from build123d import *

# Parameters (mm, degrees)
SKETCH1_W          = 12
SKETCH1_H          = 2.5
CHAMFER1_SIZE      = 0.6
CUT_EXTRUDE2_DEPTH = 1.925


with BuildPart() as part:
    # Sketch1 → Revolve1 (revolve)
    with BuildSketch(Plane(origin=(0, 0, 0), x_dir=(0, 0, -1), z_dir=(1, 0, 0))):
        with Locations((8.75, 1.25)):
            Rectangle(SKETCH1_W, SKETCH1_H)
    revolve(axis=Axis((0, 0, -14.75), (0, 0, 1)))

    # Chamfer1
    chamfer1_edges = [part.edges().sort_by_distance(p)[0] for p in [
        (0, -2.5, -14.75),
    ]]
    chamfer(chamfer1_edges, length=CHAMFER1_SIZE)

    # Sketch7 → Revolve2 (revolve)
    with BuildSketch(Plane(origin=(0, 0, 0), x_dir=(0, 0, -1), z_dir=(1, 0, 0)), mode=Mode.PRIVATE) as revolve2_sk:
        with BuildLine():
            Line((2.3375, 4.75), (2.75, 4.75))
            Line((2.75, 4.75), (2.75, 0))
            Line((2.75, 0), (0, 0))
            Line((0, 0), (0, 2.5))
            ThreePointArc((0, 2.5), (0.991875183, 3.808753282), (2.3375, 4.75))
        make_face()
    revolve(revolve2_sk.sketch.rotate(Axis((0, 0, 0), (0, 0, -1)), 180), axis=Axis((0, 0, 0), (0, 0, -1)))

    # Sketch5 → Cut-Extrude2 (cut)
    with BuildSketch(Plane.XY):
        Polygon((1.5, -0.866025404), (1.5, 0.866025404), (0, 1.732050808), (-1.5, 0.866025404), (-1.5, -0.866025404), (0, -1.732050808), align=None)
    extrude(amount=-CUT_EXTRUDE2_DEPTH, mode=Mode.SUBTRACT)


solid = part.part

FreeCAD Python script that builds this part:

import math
import FreeCAD as App
import Part
import Sketcher
Q = App.Units.Quantity


def edges_at(feature, points):
    """Names of the edges that pass closest to the given points."""
    edges = feature.Shape.Edges
    near = lambda p: min(range(len(edges)), key=lambda i: edges[i].distToShape(Part.Vertex(*p))[0])
    return sorted({f"Edge{near(p) + 1}" for p in points})


def add_polygon(sketch, points):
    """Adds a closed chain of lines whose ends are joined by coincident constraints."""
    first, n = sketch.GeometryCount, len(points)
    for a, b in zip(points, points[1:] + points[:1]):
        sketch.addGeometry(Part.LineSegment(App.Vector(*a, 0), App.Vector(*b, 0)), False)
    for i in range(n):
        sketch.addConstraint(Sketcher.Constraint("Coincident", first + i, 2, first + (i + 1) % n, 1))

doc = App.newDocument("Part")
body = doc.addObject("PartDesign::Body", "Body")

# Sketch on YZ plane
sketch1 = body.newObject("Sketcher::SketchObject", "Sketch")
sketch1.AttachmentSupport = (doc.getObject("YZ_Plane"), [""])
sketch1.MapMode = "FlatFace"
add_polygon(sketch1, [(2.5, -2.75), (0, -2.75), (0, -14.75), (2.5, -14.75)])  # lines 0-3
sketch1.addConstraint(Sketcher.Constraint("Horizontal", 0))
sketch1.addConstraint(Sketcher.Constraint("Vertical", 1))
sketch1.addConstraint(Sketcher.Constraint("Horizontal", 2))
sketch1.addConstraint(Sketcher.Constraint("Vertical", 3))
sketch1.addConstraint(Sketcher.Constraint("PointOnObject", 0, 2, -2))
sketch1.addConstraint(Sketcher.Constraint("DistanceY", 1, 2, 1, 1, Q("12 mm")))
sketch1.addConstraint(Sketcher.Constraint("DistanceX", 0, 2, 0, 1, Q("2.5 mm")))
sketch1.addConstraint(Sketcher.Constraint("DistanceY", 0, 2, -1, 1, Q("2.75 mm")))
revolution = body.newObject("PartDesign::Revolution", "Revolution")
revolution.Profile = sketch1
revolution.ReferenceAxis = (sketch1, ["V_Axis"])
revolution.Angle = 360
doc.recompute()

chamfer = body.newObject("PartDesign::Chamfer", "Chamfer")
chamfer.Base = (revolution, edges_at(revolution, [(0, -2.5, -14.75)]))
chamfer.Size = 0.6

# Sketch on YZ plane
sketch2 = body.newObject("Sketcher::SketchObject", "Sketch001")
sketch2.AttachmentSupport = (doc.getObject("YZ_Plane"), [""])
sketch2.MapMode = "FlatFace"
sketch2.addGeometry(Part.LineSegment(App.Vector(4.75, -2.75, 0), App.Vector(4.75, -2.3375, 0)), False)
sketch2.addGeometry(Part.ArcOfCircle(Part.Circle(App.Vector(0, -4.658055, 0), App.Vector(0, 0, 1), 5.286537), math.radians(26.03726), math.radians(61.777335)), False)
sketch2.addGeometry(Part.LineSegment(App.Vector(2.5, 0, 0), App.Vector(0, 0, 0)), False)
sketch2.addGeometry(Part.LineSegment(App.Vector(0, 0, 0), App.Vector(0, -2.75, 0)), False)
sketch2.addGeometry(Part.LineSegment(App.Vector(0, -2.75, 0), App.Vector(4.75, -2.75, 0)), False)
sketch2.addConstraint(Sketcher.Constraint("Coincident", 0, 2, 1, 1))
sketch2.addConstraint(Sketcher.Constraint("Coincident", 1, 2, 2, 1))
sketch2.addConstraint(Sketcher.Constraint("Coincident", 2, 2, 3, 1))
sketch2.addConstraint(Sketcher.Constraint("Coincident", 3, 2, 4, 1))
sketch2.addConstraint(Sketcher.Constraint("Coincident", 4, 2, 0, 1))
sketch2.addConstraint(Sketcher.Constraint("Vertical", 0))
sketch2.addConstraint(Sketcher.Constraint("Horizontal", 2))
sketch2.addConstraint(Sketcher.Constraint("Vertical", 3))
sketch2.addConstraint(Sketcher.Constraint("Horizontal", 4))
sketch2.addConstraint(Sketcher.Constraint("Coincident", 2, 2, -1, 1))
sketch2.addConstraint(Sketcher.Constraint("PointOnObject", 1, 3, -2))
sketch2.addConstraint(Sketcher.Constraint("DistanceX", 2, 2, 2, 1, Q("2.5 mm")))
sketch2.addConstraint(Sketcher.Constraint("DistanceX", 4, 1, 4, 2, Q("4.75 mm")))
sketch2.addConstraint(Sketcher.Constraint("DistanceY", 3, 2, 3, 1, Q("2.75 mm")))
sketch2.addConstraint(Sketcher.Constraint("DistanceY", 0, 1, 0, 2, Q("0.4125 mm")))
revolution2 = body.newObject("PartDesign::Revolution", "Revolution001")
revolution2.Profile = sketch2
revolution2.ReferenceAxis = (sketch2, ["V_Axis"])
revolution2.Angle = 360

# Sketch on XY plane
sketch3 = body.newObject("Sketcher::SketchObject", "Sketch002")
sketch3.AttachmentSupport = (doc.getObject("XY_Plane"), [""])
sketch3.MapMode = "FlatFace"
add_polygon(sketch3, [(1.5, -0.866025), (1.5, 0.866025), (0, 1.732051), (-1.5, 0.866025), (-1.5, -0.866025), (0, -1.732051)])  # lines 0-5
sketch3.addConstraint(Sketcher.Constraint("Vertical", 0))
sketch3.addConstraint(Sketcher.Constraint("Vertical", 3))
sketch3.addConstraint(Sketcher.Constraint("Symmetric", 0, 2, 3, 2, -1, 1))
sketch3.addConstraint(Sketcher.Constraint("Symmetric", 1, 2, 4, 2, -1, 1))
sketch3.addConstraint(Sketcher.Constraint("PointOnObject", 1, 2, -2))
sketch3.addConstraint(Sketcher.Constraint("Parallel", 2, 5))
sketch3.addConstraint(Sketcher.Constraint("Horizontal", 0, 2, 2, 2))
sketch3.addConstraint(Sketcher.Constraint("Angle", 1, Q("150 deg")))
sketch3.addConstraint(Sketcher.Constraint("DistanceX", 2, 2, 0, 2, Q("3 mm")))
sketch3.addConstraint(Sketcher.Constraint("DistanceY", 0, 1, 0, 2, Q("1.732051 mm")))
pocket1 = body.newObject("PartDesign::Pocket", "Pocket")
pocket1.Profile = sketch3
pocket1.Length = 1.925

doc.recompute()
